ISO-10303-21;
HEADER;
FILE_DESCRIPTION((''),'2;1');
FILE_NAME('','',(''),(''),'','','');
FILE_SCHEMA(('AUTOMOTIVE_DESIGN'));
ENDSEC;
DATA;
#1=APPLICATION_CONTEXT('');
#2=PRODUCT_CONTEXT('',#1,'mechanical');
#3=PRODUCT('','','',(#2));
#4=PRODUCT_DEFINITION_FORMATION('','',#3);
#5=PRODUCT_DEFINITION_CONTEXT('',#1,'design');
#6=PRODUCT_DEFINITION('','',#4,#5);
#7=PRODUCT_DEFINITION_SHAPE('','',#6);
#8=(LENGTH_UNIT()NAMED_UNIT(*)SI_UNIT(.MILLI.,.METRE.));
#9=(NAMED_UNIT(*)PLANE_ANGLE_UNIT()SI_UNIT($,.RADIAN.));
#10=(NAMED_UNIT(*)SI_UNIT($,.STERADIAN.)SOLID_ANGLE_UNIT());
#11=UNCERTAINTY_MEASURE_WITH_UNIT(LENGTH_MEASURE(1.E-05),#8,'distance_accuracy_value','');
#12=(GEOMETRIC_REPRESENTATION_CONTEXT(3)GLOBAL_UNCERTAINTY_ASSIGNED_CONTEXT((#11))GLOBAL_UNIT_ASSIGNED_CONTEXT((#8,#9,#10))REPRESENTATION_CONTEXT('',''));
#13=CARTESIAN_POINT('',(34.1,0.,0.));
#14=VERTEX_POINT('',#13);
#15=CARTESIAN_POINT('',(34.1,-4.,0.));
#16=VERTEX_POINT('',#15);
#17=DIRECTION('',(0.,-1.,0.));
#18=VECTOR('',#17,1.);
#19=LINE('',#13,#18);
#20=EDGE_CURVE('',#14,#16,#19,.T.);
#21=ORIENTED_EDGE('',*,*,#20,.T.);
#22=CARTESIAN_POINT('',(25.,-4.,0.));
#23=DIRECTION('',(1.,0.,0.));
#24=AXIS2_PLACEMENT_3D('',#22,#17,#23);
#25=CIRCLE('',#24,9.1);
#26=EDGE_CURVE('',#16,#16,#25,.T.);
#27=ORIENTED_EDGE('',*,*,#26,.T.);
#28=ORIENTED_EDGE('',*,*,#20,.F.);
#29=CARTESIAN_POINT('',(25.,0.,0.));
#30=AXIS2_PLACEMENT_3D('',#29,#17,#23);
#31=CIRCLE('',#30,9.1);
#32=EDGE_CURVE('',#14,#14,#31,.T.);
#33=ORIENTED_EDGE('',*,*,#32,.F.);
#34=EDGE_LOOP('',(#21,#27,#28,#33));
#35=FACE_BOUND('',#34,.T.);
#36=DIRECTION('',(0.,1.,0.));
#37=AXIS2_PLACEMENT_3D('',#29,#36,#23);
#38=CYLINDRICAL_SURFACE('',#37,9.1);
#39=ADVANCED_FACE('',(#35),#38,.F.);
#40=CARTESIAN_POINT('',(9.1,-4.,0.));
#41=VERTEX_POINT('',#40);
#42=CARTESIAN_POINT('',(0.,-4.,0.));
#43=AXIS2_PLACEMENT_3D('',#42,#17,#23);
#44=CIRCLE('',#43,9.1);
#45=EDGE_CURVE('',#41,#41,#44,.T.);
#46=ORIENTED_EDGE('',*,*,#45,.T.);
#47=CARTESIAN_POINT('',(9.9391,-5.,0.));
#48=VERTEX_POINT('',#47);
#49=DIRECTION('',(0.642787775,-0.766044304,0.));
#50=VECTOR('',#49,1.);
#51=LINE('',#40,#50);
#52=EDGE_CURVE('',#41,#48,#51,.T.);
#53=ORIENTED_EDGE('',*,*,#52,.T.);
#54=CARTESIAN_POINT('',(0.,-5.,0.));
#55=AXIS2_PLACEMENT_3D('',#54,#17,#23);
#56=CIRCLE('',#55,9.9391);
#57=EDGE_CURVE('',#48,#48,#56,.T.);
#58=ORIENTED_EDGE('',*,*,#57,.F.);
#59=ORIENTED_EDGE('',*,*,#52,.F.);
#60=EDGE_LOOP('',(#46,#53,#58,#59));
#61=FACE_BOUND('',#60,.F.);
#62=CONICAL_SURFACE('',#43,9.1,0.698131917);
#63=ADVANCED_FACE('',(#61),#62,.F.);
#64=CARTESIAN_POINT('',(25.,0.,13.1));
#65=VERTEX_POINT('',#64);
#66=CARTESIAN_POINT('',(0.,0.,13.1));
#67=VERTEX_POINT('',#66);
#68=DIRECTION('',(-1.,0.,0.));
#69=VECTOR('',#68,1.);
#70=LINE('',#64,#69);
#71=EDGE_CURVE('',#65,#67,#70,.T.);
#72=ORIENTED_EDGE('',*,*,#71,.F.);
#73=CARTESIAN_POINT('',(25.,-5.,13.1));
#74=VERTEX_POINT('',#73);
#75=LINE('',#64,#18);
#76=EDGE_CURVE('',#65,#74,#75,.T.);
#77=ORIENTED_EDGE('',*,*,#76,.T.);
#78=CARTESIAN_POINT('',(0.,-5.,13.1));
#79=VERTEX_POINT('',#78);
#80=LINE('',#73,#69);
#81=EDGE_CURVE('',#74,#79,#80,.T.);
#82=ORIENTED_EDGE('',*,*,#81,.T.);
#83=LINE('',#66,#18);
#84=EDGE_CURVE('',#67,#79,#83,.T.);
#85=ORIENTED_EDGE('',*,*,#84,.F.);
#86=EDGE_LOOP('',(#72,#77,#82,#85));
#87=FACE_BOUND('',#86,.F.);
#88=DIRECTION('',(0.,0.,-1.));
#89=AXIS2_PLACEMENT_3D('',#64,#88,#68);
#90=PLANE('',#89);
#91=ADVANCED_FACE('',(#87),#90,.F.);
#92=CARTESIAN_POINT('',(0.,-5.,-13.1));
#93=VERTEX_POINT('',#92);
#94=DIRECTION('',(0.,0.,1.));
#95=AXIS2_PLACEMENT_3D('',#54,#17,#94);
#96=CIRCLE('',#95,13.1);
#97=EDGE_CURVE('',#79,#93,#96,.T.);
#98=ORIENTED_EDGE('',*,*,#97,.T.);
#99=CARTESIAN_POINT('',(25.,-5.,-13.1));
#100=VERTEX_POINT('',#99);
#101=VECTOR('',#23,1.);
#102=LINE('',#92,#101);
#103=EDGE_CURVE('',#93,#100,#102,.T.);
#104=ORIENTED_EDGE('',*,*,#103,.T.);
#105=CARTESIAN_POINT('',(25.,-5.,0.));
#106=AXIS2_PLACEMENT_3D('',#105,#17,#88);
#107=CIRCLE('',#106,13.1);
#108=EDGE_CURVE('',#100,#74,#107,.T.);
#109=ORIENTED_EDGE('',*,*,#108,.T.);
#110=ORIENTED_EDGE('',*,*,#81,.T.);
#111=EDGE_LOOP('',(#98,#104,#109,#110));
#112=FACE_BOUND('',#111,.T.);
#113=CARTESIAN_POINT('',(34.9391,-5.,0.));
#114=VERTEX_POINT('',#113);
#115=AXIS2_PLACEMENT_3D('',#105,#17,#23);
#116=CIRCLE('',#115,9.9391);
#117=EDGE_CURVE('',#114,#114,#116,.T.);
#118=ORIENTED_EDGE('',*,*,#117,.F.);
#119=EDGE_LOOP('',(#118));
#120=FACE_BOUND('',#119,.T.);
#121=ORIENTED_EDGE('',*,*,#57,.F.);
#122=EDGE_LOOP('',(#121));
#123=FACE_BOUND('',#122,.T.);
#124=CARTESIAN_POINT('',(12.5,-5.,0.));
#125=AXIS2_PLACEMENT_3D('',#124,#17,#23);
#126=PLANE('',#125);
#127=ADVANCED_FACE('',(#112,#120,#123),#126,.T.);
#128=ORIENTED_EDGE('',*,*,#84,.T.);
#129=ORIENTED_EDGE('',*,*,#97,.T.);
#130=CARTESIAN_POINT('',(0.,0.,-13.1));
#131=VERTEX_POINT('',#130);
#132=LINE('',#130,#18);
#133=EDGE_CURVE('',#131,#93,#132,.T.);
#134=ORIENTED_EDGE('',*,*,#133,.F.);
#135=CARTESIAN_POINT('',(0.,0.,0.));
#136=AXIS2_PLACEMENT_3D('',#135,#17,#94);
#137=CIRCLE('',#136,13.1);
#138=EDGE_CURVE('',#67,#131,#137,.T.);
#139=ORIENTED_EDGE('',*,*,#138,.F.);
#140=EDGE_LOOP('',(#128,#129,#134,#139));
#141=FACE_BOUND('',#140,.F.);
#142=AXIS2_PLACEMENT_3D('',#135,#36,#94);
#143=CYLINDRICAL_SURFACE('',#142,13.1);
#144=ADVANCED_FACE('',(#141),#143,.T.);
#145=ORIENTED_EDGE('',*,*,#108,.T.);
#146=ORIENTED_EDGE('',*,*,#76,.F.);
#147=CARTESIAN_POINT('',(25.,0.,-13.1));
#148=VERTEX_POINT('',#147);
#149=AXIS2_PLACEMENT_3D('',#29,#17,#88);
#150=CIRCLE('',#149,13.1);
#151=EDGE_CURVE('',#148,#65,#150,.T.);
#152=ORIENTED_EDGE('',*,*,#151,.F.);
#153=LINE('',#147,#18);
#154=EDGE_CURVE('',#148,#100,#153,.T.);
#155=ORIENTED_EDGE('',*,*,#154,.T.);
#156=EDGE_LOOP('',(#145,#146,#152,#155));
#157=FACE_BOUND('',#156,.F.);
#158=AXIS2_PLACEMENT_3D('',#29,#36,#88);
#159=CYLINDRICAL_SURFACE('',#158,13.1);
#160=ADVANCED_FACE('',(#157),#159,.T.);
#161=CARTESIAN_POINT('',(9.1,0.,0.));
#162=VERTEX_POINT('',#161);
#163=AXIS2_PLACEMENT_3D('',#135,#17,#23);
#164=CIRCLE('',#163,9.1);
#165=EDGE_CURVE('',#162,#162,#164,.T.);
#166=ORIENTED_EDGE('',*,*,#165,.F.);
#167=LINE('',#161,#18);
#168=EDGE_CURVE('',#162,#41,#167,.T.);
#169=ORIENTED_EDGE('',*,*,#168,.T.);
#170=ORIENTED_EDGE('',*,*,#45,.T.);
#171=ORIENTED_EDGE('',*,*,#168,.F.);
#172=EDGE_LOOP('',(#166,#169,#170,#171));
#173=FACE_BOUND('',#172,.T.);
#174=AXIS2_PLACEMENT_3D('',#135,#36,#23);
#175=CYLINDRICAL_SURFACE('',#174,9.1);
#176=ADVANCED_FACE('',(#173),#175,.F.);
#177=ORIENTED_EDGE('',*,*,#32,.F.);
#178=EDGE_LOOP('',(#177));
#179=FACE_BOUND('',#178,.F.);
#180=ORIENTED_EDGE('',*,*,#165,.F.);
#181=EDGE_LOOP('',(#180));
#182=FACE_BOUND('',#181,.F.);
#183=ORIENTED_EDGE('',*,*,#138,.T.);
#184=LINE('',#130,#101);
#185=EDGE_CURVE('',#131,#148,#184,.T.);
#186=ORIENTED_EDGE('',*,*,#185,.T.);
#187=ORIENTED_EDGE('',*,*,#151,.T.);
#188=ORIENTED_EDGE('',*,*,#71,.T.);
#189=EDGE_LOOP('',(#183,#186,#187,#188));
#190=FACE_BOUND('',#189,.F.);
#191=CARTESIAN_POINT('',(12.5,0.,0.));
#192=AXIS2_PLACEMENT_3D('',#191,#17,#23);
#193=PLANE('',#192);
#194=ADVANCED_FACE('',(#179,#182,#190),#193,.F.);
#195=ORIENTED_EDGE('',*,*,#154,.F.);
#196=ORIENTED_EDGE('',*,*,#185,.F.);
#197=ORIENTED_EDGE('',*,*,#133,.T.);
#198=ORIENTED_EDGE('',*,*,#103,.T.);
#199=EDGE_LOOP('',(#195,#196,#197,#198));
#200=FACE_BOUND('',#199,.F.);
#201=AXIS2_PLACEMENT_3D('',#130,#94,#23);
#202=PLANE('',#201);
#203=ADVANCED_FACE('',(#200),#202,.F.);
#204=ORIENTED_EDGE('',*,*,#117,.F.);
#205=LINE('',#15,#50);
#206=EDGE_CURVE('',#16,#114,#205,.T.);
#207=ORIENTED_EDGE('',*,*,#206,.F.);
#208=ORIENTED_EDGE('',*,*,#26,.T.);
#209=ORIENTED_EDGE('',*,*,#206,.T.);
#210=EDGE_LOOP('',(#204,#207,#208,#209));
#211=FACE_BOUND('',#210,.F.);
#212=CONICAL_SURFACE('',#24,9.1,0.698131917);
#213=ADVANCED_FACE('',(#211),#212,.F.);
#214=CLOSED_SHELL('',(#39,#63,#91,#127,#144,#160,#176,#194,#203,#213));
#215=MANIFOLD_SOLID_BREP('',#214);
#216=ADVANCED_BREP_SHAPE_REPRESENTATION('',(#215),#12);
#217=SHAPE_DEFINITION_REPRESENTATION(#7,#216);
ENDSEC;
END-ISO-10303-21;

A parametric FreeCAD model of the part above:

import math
import FreeCAD as App
import Part
import Sketcher

V = App.Vector


def edges_at(feature, points):
    """Names of the edges that pass closest to the given points."""
    edges = feature.Shape.Edges
    near = lambda p: min(range(len(edges)), key=lambda i: edges[i].distToShape(Part.Vertex(*p))[0])
    return sorted({f"Edge{near(p) + 1}" for p in points})

doc = App.newDocument("Part")
params = doc.addObject("Spreadsheet::Sheet", "Params")
for row, (alias, value) in enumerate([
    ("sketch1_diameter", "18.2 mm"),
    ("sketch1_radius", "13.1 mm"),
    ("sketch1_width", "25 mm"),
    ("pad1_length", "5 mm"),
    ("chamfer_size", "1 mm"),
    ("chamfer_size2", "0.8391 mm"),
], start=1):
    params.set(f"A{row}", alias)
    params.set(f"B{row}", "=" + value)
    params.setAlias(f"B{row}", alias)

body = doc.addObject("PartDesign::Body", "Body")

# Sketch on XZ plane
sketch1 = body.newObject("Sketcher::SketchObject", "Sketch")
sketch1.AttachmentSupport = (doc.getObject("XZ_Plane"), [""])
sketch1.MapMode = "FlatFace"
sketch1.addGeometry(Part.LineSegment(V(25, 13, 0), V(0, 13, 0)), False)
sketch1.addGeometry(Part.ArcOfCircle(Part.Circle(V(0, 0, 0), V(0, 0, 1), 13), math.radians(90), math.radians(270)), False)
sketch1.addGeometry(Part.LineSegment(V(0, -13, 0), V(25, -13, 0)), False)
sketch1.addGeometry(Part.ArcOfCircle(Part.Circle(V(25, 0, 0), V(0, 0, 1), 13), math.radians(-90), math.radians(90)), False)
sketch1.addGeometry(Part.Circle(V(0, 0, 0), V(0, 0, 1), 9), False)
sketch1.addGeometry(Part.Circle(V(25, 0, 0), V(0, 0, 1), 9), False)
sketch1.addConstraint(Sketcher.Constraint("Tangent", 0, 2, 1, 1))
sketch1.addConstraint(Sketcher.Constraint("Tangent", 1, 2, 2, 1))
sketch1.addConstraint(Sketcher.Constraint("Tangent", 2, 2, 3, 1))
sketch1.addConstraint(Sketcher.Constraint("Tangent", 3, 2, 0, 1))
sketch1.addConstraint(Sketcher.Constraint("Horizontal", 0))
sketch1.addConstraint(Sketcher.Constraint("Horizontal", 2))
sketch1.addConstraint(Sketcher.Constraint("Coincident", 1, 3, -1, 1))
sketch1.addConstraint(Sketcher.Constraint("Coincident", 4, 3, -1, 1))
sketch1.addConstraint(Sketcher.Constraint("Coincident", 5, 3, 3, 3))
sketch1.addConstraint(Sketcher.Constraint("Equal", 4, 5))
sketch1.addConstraint(Sketcher.Constraint("Diameter", 4, 18.2))
sketch1.addConstraint(Sketcher.Constraint("Radius", 1, 13.1))
sketch1.addConstraint(Sketcher.Constraint("DistanceX", 0, 2, 0, 1, 25.0))
sketch1.setExpression("Constraints[10]", "Params.sketch1_diameter")
sketch1.setExpression("Constraints[11]", "Params.sketch1_radius")
sketch1.setExpression("Constraints[12]", "Params.sketch1_width")
pad1 = body.newObject("PartDesign::Pad", "Pad")
pad1.Profile = sketch1
pad1.setExpression("Length", "Params.pad1_length")
doc.recompute()

chamfer = body.newObject("PartDesign::Chamfer", "Chamfer")
chamfer.Base = (pad1, edges_at(pad1, [(-9.1, -5, 0), (15.9, -5, 0)]))
chamfer.ChamferType = "Two distances"
chamfer.setExpression("Size", "Params.chamfer_size")
chamfer.setExpression("Size2", "Params.chamfer_size2")

doc.recompute()
